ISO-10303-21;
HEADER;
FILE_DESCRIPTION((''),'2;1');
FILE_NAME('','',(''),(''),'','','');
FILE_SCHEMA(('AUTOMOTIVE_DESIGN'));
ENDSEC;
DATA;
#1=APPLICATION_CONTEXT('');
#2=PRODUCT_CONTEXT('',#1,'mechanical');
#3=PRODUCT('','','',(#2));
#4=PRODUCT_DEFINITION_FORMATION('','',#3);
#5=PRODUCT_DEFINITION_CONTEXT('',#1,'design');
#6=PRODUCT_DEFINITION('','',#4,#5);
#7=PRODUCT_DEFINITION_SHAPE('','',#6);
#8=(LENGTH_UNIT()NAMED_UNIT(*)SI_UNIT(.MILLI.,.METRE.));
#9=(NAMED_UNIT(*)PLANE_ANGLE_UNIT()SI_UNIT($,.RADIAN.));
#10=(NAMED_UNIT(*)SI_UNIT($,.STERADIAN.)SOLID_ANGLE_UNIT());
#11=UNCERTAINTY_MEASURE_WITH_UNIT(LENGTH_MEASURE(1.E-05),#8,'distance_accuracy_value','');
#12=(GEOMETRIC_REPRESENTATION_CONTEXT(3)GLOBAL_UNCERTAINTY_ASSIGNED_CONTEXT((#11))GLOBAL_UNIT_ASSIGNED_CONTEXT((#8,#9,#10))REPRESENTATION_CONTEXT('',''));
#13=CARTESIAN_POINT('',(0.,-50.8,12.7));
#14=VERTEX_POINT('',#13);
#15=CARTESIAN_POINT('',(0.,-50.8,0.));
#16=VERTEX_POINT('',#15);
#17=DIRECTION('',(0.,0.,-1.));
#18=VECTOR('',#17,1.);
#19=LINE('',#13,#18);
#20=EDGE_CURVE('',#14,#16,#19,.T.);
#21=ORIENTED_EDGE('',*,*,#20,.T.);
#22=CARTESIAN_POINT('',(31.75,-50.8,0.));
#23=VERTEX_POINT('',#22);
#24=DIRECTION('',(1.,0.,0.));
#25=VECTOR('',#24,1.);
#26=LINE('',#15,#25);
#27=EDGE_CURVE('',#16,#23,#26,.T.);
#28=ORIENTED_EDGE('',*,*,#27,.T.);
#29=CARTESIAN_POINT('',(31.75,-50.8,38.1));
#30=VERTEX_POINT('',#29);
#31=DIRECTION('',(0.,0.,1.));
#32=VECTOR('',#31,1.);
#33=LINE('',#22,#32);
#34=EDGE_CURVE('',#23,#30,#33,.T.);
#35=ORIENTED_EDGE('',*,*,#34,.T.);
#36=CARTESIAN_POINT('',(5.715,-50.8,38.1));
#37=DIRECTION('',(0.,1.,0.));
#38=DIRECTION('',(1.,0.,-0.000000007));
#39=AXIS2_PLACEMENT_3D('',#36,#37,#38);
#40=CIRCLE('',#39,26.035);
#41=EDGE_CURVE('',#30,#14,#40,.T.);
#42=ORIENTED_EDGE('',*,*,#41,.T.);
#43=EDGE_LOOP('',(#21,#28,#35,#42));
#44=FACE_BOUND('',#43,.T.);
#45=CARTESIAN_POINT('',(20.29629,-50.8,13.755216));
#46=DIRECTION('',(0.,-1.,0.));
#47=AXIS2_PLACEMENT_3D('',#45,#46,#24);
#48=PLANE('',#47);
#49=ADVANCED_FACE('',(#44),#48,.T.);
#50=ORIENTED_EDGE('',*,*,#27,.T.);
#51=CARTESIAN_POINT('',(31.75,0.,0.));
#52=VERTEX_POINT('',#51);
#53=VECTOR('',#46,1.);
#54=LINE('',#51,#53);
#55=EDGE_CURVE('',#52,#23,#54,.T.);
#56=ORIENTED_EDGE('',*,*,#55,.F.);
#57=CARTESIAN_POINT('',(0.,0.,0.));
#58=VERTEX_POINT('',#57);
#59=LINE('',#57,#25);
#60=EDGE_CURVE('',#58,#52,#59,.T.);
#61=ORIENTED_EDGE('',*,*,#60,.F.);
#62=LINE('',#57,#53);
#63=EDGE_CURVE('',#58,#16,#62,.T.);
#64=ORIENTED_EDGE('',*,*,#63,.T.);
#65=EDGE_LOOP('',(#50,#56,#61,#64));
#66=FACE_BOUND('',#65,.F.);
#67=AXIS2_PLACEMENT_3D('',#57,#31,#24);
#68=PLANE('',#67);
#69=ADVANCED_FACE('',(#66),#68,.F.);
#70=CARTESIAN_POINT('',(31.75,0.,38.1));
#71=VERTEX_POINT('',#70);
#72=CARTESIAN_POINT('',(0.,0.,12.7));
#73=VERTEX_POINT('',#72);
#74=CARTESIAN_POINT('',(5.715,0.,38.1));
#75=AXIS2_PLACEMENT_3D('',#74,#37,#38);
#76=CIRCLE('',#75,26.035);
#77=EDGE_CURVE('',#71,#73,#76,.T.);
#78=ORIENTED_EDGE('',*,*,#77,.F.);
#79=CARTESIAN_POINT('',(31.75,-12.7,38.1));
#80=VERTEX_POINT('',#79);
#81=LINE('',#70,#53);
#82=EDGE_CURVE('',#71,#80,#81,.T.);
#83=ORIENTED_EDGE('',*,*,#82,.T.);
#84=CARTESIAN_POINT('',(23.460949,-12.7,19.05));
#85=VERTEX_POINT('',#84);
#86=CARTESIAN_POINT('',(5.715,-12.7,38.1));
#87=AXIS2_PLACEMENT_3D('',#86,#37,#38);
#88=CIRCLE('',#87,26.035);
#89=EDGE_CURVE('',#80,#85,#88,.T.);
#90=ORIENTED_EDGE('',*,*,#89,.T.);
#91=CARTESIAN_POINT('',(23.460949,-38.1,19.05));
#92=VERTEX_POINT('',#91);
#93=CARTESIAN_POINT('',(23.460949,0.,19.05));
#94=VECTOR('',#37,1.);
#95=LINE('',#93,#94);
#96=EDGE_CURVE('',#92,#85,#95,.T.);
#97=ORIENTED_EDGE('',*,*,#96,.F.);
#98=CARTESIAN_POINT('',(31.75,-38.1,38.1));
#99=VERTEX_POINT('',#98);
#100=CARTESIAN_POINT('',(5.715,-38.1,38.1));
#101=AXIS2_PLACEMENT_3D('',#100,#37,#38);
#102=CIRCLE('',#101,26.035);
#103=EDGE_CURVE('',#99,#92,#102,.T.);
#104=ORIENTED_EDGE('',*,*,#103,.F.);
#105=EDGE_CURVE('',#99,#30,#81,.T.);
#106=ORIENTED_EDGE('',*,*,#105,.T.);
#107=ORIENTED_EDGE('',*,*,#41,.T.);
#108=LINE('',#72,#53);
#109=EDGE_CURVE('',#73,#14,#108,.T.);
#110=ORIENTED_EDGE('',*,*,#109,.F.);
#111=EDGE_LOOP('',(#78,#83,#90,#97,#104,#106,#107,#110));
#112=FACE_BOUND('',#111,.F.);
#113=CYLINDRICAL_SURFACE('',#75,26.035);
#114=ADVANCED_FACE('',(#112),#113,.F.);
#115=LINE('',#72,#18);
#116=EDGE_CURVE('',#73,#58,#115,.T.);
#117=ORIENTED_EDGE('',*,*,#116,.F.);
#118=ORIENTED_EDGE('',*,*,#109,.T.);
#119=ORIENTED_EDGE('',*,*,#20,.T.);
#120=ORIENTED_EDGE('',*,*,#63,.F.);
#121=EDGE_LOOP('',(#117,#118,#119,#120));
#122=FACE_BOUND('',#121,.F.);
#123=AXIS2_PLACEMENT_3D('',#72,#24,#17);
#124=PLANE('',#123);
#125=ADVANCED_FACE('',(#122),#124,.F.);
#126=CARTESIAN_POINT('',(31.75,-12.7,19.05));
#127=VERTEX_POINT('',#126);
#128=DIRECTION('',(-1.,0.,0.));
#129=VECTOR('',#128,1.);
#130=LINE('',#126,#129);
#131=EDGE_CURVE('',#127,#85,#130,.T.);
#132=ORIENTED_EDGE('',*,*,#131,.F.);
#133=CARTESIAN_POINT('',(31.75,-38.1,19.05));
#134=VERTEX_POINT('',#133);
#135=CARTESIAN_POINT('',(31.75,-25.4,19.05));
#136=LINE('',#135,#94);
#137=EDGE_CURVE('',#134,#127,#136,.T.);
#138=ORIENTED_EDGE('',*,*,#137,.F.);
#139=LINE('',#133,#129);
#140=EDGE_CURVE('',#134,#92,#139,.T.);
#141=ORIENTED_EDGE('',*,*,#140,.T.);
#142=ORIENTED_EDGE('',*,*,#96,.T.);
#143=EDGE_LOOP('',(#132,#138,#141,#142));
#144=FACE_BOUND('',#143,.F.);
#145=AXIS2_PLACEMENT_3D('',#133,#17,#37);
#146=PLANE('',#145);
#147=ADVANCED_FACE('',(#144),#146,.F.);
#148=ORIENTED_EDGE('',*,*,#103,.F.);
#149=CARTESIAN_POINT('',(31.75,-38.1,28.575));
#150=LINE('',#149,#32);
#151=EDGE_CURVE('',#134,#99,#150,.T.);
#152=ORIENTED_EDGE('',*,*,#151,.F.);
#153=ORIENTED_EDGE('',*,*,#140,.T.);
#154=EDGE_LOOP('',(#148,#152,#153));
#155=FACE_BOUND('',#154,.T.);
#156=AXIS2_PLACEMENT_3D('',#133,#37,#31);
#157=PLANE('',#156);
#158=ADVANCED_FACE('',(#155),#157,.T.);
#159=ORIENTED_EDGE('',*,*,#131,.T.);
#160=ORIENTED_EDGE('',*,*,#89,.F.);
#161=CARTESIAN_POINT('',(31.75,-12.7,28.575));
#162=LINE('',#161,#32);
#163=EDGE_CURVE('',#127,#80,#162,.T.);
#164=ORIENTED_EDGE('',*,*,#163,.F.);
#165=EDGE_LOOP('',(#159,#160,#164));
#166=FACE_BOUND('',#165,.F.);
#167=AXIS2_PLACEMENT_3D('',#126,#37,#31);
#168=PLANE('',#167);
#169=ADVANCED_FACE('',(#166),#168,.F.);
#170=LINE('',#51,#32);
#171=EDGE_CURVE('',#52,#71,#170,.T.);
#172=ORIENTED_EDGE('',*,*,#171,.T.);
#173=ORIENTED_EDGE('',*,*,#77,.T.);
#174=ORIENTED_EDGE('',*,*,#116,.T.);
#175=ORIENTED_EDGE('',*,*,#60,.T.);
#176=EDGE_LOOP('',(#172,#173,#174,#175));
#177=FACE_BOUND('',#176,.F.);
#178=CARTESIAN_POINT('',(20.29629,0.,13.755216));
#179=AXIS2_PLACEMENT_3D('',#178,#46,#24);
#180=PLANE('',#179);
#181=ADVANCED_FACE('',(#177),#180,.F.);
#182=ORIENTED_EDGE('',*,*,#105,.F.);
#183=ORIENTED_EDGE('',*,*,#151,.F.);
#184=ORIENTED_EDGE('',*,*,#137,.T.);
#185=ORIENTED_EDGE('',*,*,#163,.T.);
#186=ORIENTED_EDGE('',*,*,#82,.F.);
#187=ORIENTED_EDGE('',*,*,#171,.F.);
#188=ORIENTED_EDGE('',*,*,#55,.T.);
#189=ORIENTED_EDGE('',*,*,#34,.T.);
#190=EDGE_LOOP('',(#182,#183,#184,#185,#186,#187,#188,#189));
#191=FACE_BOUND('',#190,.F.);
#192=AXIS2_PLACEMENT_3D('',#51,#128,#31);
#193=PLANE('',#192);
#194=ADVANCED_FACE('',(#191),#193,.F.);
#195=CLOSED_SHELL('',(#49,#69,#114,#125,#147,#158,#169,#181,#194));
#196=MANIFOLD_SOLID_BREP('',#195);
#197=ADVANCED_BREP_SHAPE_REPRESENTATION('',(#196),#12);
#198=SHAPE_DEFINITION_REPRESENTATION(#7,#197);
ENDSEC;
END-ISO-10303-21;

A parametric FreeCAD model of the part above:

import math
import FreeCAD as App
import Part
import Sketcher
Q = App.Units.Quantity

doc = App.newDocument("Part")
params = doc.addObject("Spreadsheet::Sheet", "Params")
for row, (alias, value) in enumerate([
    ("sketch1_height", "0.5 in"),
    ("sketch1_height2", "1.5 in"),
    ("sketch1_radius", "1.025 in"),
    ("pad1_length", "2 in"),
    ("sketch2_width", "1 in"),
    ("sketch2_height", "0.75 in"),
    ("pocket1_length", "1 in"),
], start=1):
    params.set(f"A{row}", alias)
    params.set(f"B{row}", "=" + value)
    params.setAlias(f"B{row}", alias)

body = doc.addObject("PartDesign::Body", "Body")

# Sketch on XZ plane
sketch1 = body.newObject("Sketcher::SketchObject", "Sketch")
sketch1.AttachmentSupport = (doc.getObject("XZ_Plane"), [""])
sketch1.MapMode = "FlatFace"
sketch1.addGeometry(Part.LineSegment(App.Vector(0, 13, 0), App.Vector(0, 0, 0)), False)
sketch1.addGeometry(Part.LineSegment(App.Vector(0, 0, 0), App.Vector(32, 0, 0)), False)
sketch1.addGeometry(Part.LineSegment(App.Vector(32, 0, 0), App.Vector(32, 38, 0)), False)
sketch1.addGeometry(Part.ArcOfCircle(Part.Circle(App.Vector(6, 38, 0), App.Vector(0, 0, 1), 26), math.radians(-103), math.radians(0)), False)
sketch1.addConstraint(Sketcher.Constraint("Coincident", 0, 2, 1, 1))
sketch1.addConstraint(Sketcher.Constraint("Coincident", 1, 2, 2, 1))
sketch1.addConstraint(Sketcher.Constraint("Tangent", 2, 2, 3, 2))
sketch1.addConstraint(Sketcher.Constraint("Coincident", 3, 1, 0, 1))
sketch1.addConstraint(Sketcher.Constraint("Vertical", 0))
sketch1.addConstraint(Sketcher.Constraint("Horizontal", 1))
sketch1.addConstraint(Sketcher.Constraint("Vertical", 2))
sketch1.addConstraint(Sketcher.Constraint("Coincident", 0, 2, -1, 1))
sketch1.addConstraint(Sketcher.Constraint("DistanceY", 0, 2, 0, 1, Q("0.5 in")))
sketch1.addConstraint(Sketcher.Constraint("DistanceY", 2, 1, 2, 2, Q("1.5 in")))
sketch1.addConstraint(Sketcher.Constraint("Radius", 3, Q("1.025 in")))
sketch1.setExpression("Constraints[8]", "Params.sketch1_height")
sketch1.setExpression("Constraints[9]", "Params.sketch1_height2")
sketch1.setExpression("Constraints[10]", "Params.sketch1_radius")
pad1 = body.newObject("PartDesign::Pad", "Pad")
pad1.Profile = sketch1
pad1.setExpression("Length", "Params.pad1_length")

# Sketch on YZ plane
sketch2 = body.newObject("Sketcher::SketchObject", "Sketch001")
sketch2.AttachmentSupport = (doc.getObject("YZ_Plane"), [""])
sketch2.MapMode = "FlatFace"
sketch2.AttachmentOffset = App.Placement(App.Vector(0, 0, 1.25 * 25.4), App.Rotation())
sketch2.addGeometry(Part.LineSegment(App.Vector(-38, 38, 0), App.Vector(-38, 19, 0)), False)
sketch2.addGeometry(Part.LineSegment(App.Vector(-38, 19, 0), App.Vector(-13, 19, 0)), False)
sketch2.addGeometry(Part.LineSegment(App.Vector(-13, 19, 0), App.Vector(-13, 38, 0)), False)
sketch2.addGeometry(Part.LineSegment(App.Vector(-13, 38, 0), App.Vector(-38, 38, 0)), False)
sketch2.addConstraint(Sketcher.Constraint("Coincident", 0, 2, 1, 1))
sketch2.addConstraint(Sketcher.Constraint("Coincident", 1, 2, 2, 1))
sketch2.addConstraint(Sketcher.Constraint("Coincident", 2, 2, 3, 1))
sketch2.addConstraint(Sketcher.Constraint("Coincident", 3, 2, 0, 1))
sketch2.addConstraint(Sketcher.Constraint("Vertical", 0))
sketch2.addConstraint(Sketcher.Constraint("Horizontal", 1))
sketch2.addConstraint(Sketcher.Constraint("Vertical", 2))
sketch2.addConstraint(Sketcher.Constraint("Horizontal", 3))
sketch2.addConstraint(Sketcher.Constraint("DistanceX", 1, 1, 1, 2, Q("1 in")))
sketch2.addConstraint(Sketcher.Constraint("DistanceY", 0, 2, 0, 1, Q("0.75 in")))
sketch2.addConstraint(Sketcher.Constraint("DistanceX", 0, 2, -1, 1, Q("1.5 in")))
sketch2.addConstraint(Sketcher.Constraint("DistanceY", -1, 1, 2, 2, Q("1.5 in")))
sketch2.setExpression("Constraints[8]", "Params.sketch2_width")
sketch2.setExpression("Constraints[9]", "Params.sketch2_height")
pocket1 = body.newObject("PartDesign::Pocket", "Pocket")
pocket1.Profile = sketch2
pocket1.setExpression("Length", "Params.pocket1_length")

doc.recompute()
